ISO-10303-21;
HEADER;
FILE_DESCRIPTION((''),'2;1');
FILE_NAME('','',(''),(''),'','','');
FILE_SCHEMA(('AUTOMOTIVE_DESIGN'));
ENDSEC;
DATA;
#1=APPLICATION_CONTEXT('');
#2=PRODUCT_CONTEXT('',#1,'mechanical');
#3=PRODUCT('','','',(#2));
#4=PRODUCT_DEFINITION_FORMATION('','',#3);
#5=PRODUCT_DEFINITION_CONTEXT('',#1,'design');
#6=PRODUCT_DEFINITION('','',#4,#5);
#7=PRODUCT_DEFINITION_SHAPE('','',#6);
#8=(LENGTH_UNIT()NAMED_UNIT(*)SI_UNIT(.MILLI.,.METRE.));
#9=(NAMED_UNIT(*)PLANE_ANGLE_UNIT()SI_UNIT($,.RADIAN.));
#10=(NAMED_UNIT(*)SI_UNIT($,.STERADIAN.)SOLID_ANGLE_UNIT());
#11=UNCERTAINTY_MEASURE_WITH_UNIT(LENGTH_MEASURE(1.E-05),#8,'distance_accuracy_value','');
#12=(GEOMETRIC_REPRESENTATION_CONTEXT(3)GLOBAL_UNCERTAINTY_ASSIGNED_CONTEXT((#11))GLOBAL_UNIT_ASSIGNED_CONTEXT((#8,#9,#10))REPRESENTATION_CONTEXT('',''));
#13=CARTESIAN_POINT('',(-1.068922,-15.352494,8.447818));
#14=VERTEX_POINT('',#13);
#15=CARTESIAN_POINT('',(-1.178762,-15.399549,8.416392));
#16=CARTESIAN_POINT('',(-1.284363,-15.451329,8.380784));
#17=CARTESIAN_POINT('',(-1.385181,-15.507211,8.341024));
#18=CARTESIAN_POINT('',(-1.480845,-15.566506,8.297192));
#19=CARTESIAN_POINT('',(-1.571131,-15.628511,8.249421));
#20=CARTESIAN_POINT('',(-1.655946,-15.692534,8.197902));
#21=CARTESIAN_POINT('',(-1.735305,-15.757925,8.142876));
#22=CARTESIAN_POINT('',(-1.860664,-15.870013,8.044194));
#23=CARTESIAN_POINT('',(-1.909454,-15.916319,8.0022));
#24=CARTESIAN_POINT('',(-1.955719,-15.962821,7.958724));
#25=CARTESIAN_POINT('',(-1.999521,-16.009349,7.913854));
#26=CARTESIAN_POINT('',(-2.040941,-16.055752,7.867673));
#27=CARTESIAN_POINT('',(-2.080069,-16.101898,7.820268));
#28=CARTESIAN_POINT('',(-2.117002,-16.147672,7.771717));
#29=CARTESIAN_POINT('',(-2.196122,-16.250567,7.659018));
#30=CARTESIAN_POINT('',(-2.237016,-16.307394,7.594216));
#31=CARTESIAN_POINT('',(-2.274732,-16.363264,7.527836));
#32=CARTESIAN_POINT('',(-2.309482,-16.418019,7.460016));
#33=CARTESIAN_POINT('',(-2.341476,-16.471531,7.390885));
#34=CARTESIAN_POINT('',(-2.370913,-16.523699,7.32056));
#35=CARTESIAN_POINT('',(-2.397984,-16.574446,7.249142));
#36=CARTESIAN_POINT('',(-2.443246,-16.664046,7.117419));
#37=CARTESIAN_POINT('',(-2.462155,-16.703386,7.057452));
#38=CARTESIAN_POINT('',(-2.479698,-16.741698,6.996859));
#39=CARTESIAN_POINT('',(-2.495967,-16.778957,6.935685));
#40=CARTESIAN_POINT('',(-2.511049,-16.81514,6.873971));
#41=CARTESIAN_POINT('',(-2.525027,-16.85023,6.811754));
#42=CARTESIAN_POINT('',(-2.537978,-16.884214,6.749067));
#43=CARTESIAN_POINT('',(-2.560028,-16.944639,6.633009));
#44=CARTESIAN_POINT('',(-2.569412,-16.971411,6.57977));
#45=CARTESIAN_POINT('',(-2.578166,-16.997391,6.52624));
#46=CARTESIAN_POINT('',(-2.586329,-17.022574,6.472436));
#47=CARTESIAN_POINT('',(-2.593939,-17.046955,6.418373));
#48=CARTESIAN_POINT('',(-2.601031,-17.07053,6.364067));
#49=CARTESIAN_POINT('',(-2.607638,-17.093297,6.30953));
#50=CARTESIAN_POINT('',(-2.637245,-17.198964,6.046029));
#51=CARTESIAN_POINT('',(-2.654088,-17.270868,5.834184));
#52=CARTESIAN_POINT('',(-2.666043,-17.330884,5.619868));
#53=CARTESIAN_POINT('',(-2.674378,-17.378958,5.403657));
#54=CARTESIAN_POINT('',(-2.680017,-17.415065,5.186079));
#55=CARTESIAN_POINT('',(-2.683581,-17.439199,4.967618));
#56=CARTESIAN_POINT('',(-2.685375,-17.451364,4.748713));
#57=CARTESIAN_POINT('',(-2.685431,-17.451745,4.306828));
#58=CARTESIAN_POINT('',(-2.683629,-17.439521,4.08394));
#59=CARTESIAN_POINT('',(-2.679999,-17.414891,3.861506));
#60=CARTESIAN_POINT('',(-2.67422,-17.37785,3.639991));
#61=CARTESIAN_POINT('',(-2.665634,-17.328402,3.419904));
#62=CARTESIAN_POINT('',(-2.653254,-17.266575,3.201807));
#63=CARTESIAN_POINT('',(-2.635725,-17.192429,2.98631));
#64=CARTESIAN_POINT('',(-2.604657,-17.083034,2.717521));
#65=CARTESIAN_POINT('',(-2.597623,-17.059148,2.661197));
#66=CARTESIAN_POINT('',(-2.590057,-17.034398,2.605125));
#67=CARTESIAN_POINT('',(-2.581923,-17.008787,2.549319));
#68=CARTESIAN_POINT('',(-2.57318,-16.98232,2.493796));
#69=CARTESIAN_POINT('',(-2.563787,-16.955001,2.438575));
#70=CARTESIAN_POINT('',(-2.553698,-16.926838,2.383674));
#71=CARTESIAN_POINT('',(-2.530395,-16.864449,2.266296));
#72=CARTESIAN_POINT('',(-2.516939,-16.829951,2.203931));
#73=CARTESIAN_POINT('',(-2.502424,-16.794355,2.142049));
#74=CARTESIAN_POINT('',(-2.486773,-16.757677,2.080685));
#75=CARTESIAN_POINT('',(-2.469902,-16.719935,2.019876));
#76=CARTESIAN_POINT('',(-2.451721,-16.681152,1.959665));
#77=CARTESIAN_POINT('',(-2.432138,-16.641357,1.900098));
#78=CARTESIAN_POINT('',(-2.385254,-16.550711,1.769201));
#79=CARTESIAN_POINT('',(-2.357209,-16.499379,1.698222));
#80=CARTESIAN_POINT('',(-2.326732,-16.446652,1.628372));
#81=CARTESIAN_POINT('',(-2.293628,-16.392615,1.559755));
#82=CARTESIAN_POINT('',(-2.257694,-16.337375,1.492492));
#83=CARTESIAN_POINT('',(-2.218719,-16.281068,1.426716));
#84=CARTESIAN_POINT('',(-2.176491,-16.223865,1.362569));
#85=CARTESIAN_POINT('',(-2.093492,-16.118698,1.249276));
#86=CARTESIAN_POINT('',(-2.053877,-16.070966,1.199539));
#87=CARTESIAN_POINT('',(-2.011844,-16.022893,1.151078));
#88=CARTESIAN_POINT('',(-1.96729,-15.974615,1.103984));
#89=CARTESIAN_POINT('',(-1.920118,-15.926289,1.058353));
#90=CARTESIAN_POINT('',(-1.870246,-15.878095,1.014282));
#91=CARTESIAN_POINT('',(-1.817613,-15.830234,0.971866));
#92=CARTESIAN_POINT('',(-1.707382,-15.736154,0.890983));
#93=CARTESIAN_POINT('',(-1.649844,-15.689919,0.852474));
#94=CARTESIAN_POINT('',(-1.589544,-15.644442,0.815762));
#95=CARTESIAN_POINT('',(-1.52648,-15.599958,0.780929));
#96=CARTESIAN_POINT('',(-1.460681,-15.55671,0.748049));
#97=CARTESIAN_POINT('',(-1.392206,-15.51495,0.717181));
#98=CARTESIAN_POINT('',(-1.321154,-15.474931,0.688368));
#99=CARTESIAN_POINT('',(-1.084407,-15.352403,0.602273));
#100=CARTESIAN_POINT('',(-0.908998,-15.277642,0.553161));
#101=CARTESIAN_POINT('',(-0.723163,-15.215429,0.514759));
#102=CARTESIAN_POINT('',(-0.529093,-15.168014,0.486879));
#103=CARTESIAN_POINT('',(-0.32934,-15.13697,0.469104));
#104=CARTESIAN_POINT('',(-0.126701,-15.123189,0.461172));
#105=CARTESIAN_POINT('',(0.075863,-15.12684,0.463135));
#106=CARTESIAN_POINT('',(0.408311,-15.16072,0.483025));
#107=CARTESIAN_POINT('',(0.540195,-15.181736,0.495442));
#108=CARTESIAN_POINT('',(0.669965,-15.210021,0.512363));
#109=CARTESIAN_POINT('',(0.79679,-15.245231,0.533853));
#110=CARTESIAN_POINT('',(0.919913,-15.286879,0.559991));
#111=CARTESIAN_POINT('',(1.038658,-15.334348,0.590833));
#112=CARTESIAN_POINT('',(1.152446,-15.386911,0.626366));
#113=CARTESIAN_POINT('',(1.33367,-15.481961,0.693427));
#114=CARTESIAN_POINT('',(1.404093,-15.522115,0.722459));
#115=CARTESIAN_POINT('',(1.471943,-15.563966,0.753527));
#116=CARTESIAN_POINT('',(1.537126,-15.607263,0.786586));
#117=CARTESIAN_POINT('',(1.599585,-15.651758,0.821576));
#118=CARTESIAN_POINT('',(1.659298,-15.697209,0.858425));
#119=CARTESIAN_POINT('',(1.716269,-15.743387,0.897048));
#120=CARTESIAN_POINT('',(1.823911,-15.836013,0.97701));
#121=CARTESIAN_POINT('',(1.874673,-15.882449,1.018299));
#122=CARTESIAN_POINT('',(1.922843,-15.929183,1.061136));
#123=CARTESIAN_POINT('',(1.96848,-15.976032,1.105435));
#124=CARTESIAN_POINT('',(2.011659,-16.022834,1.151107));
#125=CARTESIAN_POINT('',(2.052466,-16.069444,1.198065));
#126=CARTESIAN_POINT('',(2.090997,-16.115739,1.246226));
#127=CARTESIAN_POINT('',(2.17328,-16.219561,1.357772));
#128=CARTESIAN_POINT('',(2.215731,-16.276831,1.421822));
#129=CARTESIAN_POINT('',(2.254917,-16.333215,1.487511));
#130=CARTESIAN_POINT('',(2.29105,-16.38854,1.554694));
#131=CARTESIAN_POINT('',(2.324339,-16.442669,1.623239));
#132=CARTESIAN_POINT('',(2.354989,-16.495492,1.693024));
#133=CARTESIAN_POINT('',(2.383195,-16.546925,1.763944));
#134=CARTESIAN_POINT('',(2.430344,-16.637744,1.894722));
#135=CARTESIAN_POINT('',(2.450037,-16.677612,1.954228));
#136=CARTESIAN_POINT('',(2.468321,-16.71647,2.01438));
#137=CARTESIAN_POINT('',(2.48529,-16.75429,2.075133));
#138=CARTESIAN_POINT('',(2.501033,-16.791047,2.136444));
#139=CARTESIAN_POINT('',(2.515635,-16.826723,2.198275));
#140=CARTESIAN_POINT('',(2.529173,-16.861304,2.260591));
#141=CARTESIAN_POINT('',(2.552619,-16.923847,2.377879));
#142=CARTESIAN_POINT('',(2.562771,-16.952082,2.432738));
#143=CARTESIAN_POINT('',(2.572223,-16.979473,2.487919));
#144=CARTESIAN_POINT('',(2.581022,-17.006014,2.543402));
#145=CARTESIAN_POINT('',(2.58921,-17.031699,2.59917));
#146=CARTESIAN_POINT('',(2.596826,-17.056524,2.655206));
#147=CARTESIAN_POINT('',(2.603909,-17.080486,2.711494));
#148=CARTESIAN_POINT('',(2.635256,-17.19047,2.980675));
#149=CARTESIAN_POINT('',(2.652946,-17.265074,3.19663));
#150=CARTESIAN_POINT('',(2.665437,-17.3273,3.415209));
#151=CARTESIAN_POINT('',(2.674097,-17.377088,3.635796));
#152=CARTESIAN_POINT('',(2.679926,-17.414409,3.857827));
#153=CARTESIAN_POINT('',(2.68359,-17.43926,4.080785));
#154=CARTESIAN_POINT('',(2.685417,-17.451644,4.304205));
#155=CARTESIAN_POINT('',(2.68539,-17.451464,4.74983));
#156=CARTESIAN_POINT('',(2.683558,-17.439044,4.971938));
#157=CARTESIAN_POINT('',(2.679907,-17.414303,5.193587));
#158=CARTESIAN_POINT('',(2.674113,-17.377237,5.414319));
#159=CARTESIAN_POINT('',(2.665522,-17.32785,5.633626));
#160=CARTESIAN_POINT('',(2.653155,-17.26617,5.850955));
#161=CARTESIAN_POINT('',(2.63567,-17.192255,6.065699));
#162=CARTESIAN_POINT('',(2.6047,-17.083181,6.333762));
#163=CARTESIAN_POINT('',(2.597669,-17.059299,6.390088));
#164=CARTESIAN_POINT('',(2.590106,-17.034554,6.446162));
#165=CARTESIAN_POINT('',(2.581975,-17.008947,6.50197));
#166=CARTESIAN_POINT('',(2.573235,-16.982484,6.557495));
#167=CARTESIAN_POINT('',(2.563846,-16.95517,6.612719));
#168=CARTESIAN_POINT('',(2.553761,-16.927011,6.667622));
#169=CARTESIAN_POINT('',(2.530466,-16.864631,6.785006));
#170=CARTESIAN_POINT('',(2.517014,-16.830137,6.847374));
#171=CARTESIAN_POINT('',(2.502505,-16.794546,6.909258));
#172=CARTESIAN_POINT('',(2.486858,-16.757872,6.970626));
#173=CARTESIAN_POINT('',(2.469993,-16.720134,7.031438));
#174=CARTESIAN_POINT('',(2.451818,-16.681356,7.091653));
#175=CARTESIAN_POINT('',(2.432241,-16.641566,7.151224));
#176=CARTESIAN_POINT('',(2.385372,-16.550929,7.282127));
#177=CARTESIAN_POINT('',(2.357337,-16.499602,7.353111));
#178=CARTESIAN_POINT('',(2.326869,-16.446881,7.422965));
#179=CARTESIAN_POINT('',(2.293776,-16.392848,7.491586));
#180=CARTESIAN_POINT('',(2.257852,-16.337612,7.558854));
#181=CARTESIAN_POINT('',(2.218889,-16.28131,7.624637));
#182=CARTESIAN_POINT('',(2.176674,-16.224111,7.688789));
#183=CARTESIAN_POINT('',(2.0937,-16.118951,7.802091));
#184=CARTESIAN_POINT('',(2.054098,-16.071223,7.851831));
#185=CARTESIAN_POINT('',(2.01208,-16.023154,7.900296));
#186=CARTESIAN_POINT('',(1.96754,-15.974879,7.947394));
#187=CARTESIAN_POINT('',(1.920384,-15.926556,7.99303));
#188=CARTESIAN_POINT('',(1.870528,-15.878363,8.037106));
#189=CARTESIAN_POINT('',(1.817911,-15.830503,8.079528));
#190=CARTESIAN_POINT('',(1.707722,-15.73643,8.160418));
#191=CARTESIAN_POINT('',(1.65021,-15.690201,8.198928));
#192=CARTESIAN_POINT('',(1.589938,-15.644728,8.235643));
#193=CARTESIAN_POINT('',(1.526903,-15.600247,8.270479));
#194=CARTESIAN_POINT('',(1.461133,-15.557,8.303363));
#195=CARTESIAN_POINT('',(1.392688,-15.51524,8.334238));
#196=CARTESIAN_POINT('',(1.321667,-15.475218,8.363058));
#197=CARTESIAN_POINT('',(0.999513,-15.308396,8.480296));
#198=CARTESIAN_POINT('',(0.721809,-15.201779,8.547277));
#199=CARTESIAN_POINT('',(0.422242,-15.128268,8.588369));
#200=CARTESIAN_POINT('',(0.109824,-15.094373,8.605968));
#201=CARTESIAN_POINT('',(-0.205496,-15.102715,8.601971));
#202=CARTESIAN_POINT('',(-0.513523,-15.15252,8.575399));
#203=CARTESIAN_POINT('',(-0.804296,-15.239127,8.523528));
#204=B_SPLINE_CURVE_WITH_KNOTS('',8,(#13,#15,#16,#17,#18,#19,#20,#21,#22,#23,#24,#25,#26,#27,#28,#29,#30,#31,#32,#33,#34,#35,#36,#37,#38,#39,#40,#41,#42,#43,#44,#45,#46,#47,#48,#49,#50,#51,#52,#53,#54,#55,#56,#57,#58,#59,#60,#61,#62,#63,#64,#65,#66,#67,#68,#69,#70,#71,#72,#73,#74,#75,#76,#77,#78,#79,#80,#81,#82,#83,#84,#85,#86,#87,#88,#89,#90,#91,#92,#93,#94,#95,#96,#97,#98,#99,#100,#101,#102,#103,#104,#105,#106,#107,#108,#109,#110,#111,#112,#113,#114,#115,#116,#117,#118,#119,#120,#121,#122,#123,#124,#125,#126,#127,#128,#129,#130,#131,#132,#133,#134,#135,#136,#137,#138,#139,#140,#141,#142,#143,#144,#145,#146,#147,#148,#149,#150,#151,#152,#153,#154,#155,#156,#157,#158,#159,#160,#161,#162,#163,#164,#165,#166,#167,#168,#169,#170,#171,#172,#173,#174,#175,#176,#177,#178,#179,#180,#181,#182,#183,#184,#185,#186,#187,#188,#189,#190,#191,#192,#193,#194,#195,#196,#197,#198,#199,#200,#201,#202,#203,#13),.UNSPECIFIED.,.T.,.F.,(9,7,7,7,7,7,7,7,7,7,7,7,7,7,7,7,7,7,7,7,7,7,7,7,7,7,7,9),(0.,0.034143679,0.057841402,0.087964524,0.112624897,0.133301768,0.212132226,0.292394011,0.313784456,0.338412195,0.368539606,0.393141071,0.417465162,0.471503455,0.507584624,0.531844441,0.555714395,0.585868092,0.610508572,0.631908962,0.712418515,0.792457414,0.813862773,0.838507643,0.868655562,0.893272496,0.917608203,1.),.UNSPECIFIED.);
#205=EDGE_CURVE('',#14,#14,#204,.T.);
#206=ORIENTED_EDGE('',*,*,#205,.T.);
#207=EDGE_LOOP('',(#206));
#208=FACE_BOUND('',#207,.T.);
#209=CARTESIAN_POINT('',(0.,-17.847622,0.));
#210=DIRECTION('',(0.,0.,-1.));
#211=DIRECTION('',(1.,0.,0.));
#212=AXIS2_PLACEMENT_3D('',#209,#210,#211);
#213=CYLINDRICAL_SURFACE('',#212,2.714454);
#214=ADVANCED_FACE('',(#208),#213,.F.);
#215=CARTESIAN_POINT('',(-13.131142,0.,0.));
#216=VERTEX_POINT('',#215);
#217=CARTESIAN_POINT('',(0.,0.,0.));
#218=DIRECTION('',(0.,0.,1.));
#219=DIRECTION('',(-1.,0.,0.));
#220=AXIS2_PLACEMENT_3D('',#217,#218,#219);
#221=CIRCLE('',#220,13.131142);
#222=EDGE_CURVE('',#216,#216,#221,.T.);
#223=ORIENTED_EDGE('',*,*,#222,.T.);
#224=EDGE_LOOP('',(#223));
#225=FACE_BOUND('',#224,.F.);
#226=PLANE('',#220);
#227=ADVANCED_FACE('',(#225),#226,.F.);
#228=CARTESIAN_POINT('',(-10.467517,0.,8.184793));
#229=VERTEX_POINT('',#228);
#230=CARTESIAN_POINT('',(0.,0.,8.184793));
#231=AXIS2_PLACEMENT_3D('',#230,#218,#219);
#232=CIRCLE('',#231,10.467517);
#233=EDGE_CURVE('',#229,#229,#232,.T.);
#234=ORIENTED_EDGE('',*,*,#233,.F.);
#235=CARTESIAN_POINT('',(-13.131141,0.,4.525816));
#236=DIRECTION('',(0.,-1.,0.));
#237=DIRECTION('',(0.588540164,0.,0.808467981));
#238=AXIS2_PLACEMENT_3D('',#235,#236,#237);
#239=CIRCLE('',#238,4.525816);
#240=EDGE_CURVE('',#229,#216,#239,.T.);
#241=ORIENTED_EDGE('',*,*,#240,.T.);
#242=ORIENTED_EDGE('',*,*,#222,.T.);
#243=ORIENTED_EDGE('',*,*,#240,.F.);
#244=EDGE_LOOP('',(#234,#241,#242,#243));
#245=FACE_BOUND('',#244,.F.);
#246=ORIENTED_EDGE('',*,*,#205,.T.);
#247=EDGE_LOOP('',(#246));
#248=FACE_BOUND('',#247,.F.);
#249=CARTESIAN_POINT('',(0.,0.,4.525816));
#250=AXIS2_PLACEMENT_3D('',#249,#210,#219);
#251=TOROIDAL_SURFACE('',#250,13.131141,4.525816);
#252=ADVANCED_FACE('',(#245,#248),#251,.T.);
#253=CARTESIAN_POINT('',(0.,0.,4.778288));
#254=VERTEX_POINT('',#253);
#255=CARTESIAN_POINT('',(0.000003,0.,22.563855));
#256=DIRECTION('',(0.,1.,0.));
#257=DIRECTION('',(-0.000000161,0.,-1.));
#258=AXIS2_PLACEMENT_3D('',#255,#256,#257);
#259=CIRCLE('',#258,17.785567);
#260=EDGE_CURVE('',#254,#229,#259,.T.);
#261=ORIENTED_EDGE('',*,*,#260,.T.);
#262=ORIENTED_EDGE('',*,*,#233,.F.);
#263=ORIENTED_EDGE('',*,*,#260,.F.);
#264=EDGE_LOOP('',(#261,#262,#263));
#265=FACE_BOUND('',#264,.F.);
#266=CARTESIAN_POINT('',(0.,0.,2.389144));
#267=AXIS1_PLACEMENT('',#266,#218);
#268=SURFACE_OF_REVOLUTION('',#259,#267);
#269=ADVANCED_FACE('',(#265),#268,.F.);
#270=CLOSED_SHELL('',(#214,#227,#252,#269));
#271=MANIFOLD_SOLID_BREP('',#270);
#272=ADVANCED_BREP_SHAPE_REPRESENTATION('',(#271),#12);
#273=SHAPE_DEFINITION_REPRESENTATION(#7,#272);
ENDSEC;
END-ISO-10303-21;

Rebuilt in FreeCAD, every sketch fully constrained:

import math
import FreeCAD as App
import Part
import Sketcher
from FreeCAD import Vector
Q = App.Units.Quantity

doc = App.newDocument("Part")
params = doc.addObject("Spreadsheet::Sheet", "Params")
for row, (alias, value) in enumerate([
    ("revolution_angle", "360 deg"),
    ("pocket1_length", "25 mm"),
], start=1):
    params.set(f"A{row}", alias)
    params.set(f"B{row}", "=" + value)
    params.setAlias(f"B{row}", alias)

body = doc.addObject("PartDesign::Body", "Body")

# Sketch on XZ plane
sketch1 = body.newObject("Sketcher::SketchObject", "Sketch")
sketch1.AttachmentSupport = (doc.getObject("XZ_Plane"), [""])
sketch1.MapMode = "FlatFace"
sketch1.addGeometry([
    Part.LineSegment(Vector(-13.1, 0, 0), Vector(0, 0, 0)),
    Part.LineSegment(Vector(0, 0, 0), Vector(0, 4.8, 0)),
    Part.ArcOfCircle(Part.Circle(Vector(0, 22.6, 0), Vector(0, 0, 1), 17.8), math.radians(-126), math.radians(-90)),
    Part.ArcOfCircle(Part.Circle(Vector(-13.1, 4.5, 0), Vector(0, 0, 1), 4.5), math.radians(54), math.radians(270)),
], False)
sketch1.addConstraint([
    Sketcher.Constraint("Coincident", 0, 2, 1, 1),
    Sketcher.Constraint("Coincident", 1, 2, 2, 2),
    Sketcher.Constraint("Tangent", 2, 1, 3, 1),
    Sketcher.Constraint("Tangent", 3, 2, 0, 1),
    Sketcher.Constraint("Horizontal", 0),
    Sketcher.Constraint("Vertical", 1),
    Sketcher.Constraint("Coincident", 0, 2, -1, 1),
    Sketcher.Constraint("Radius", 2, Q("17.785567 mm")),
    Sketcher.Constraint("Radius", 3, Q("4.525816 mm")),
    Sketcher.Constraint("DistanceX", 0, 1, 0, 2, Q("13.131142 mm")),
    Sketcher.Constraint("DistanceY", 1, 1, 1, 2, Q("4.778288 mm")),
])
revolution = body.newObject("PartDesign::Revolution", "Revolution")
revolution.Profile = sketch1
revolution.ReferenceAxis = (sketch1, ["V_Axis"])
revolution.setExpression("Angle", "Params.revolution_angle")

# Sketch on XY plane
sketch2 = body.newObject("Sketcher::SketchObject", "Sketch001")
sketch2.AttachmentSupport = (doc.getObject("XY_Plane"), [""])
sketch2.MapMode = "FlatFace"
sketch2.addGeometry(Part.Circle(Vector(0, -17.8, 0), Vector(0, 0, 1), 2.7), False)
sketch2.addConstraint([
    Sketcher.Constraint("PointOnObject", 0, 3, -2),
    Sketcher.Constraint("Diameter", 0, Q("5.428908 mm")),
    Sketcher.Constraint("DistanceY", 0, 3, -1, 1, Q("17.847622 mm")),
])
pocket1 = body.newObject("PartDesign::Pocket", "Pocket")
pocket1.Profile = sketch2
pocket1.setExpression("Length", "Params.pocket1_length")
pocket1.Reversed = True

doc.recompute()
